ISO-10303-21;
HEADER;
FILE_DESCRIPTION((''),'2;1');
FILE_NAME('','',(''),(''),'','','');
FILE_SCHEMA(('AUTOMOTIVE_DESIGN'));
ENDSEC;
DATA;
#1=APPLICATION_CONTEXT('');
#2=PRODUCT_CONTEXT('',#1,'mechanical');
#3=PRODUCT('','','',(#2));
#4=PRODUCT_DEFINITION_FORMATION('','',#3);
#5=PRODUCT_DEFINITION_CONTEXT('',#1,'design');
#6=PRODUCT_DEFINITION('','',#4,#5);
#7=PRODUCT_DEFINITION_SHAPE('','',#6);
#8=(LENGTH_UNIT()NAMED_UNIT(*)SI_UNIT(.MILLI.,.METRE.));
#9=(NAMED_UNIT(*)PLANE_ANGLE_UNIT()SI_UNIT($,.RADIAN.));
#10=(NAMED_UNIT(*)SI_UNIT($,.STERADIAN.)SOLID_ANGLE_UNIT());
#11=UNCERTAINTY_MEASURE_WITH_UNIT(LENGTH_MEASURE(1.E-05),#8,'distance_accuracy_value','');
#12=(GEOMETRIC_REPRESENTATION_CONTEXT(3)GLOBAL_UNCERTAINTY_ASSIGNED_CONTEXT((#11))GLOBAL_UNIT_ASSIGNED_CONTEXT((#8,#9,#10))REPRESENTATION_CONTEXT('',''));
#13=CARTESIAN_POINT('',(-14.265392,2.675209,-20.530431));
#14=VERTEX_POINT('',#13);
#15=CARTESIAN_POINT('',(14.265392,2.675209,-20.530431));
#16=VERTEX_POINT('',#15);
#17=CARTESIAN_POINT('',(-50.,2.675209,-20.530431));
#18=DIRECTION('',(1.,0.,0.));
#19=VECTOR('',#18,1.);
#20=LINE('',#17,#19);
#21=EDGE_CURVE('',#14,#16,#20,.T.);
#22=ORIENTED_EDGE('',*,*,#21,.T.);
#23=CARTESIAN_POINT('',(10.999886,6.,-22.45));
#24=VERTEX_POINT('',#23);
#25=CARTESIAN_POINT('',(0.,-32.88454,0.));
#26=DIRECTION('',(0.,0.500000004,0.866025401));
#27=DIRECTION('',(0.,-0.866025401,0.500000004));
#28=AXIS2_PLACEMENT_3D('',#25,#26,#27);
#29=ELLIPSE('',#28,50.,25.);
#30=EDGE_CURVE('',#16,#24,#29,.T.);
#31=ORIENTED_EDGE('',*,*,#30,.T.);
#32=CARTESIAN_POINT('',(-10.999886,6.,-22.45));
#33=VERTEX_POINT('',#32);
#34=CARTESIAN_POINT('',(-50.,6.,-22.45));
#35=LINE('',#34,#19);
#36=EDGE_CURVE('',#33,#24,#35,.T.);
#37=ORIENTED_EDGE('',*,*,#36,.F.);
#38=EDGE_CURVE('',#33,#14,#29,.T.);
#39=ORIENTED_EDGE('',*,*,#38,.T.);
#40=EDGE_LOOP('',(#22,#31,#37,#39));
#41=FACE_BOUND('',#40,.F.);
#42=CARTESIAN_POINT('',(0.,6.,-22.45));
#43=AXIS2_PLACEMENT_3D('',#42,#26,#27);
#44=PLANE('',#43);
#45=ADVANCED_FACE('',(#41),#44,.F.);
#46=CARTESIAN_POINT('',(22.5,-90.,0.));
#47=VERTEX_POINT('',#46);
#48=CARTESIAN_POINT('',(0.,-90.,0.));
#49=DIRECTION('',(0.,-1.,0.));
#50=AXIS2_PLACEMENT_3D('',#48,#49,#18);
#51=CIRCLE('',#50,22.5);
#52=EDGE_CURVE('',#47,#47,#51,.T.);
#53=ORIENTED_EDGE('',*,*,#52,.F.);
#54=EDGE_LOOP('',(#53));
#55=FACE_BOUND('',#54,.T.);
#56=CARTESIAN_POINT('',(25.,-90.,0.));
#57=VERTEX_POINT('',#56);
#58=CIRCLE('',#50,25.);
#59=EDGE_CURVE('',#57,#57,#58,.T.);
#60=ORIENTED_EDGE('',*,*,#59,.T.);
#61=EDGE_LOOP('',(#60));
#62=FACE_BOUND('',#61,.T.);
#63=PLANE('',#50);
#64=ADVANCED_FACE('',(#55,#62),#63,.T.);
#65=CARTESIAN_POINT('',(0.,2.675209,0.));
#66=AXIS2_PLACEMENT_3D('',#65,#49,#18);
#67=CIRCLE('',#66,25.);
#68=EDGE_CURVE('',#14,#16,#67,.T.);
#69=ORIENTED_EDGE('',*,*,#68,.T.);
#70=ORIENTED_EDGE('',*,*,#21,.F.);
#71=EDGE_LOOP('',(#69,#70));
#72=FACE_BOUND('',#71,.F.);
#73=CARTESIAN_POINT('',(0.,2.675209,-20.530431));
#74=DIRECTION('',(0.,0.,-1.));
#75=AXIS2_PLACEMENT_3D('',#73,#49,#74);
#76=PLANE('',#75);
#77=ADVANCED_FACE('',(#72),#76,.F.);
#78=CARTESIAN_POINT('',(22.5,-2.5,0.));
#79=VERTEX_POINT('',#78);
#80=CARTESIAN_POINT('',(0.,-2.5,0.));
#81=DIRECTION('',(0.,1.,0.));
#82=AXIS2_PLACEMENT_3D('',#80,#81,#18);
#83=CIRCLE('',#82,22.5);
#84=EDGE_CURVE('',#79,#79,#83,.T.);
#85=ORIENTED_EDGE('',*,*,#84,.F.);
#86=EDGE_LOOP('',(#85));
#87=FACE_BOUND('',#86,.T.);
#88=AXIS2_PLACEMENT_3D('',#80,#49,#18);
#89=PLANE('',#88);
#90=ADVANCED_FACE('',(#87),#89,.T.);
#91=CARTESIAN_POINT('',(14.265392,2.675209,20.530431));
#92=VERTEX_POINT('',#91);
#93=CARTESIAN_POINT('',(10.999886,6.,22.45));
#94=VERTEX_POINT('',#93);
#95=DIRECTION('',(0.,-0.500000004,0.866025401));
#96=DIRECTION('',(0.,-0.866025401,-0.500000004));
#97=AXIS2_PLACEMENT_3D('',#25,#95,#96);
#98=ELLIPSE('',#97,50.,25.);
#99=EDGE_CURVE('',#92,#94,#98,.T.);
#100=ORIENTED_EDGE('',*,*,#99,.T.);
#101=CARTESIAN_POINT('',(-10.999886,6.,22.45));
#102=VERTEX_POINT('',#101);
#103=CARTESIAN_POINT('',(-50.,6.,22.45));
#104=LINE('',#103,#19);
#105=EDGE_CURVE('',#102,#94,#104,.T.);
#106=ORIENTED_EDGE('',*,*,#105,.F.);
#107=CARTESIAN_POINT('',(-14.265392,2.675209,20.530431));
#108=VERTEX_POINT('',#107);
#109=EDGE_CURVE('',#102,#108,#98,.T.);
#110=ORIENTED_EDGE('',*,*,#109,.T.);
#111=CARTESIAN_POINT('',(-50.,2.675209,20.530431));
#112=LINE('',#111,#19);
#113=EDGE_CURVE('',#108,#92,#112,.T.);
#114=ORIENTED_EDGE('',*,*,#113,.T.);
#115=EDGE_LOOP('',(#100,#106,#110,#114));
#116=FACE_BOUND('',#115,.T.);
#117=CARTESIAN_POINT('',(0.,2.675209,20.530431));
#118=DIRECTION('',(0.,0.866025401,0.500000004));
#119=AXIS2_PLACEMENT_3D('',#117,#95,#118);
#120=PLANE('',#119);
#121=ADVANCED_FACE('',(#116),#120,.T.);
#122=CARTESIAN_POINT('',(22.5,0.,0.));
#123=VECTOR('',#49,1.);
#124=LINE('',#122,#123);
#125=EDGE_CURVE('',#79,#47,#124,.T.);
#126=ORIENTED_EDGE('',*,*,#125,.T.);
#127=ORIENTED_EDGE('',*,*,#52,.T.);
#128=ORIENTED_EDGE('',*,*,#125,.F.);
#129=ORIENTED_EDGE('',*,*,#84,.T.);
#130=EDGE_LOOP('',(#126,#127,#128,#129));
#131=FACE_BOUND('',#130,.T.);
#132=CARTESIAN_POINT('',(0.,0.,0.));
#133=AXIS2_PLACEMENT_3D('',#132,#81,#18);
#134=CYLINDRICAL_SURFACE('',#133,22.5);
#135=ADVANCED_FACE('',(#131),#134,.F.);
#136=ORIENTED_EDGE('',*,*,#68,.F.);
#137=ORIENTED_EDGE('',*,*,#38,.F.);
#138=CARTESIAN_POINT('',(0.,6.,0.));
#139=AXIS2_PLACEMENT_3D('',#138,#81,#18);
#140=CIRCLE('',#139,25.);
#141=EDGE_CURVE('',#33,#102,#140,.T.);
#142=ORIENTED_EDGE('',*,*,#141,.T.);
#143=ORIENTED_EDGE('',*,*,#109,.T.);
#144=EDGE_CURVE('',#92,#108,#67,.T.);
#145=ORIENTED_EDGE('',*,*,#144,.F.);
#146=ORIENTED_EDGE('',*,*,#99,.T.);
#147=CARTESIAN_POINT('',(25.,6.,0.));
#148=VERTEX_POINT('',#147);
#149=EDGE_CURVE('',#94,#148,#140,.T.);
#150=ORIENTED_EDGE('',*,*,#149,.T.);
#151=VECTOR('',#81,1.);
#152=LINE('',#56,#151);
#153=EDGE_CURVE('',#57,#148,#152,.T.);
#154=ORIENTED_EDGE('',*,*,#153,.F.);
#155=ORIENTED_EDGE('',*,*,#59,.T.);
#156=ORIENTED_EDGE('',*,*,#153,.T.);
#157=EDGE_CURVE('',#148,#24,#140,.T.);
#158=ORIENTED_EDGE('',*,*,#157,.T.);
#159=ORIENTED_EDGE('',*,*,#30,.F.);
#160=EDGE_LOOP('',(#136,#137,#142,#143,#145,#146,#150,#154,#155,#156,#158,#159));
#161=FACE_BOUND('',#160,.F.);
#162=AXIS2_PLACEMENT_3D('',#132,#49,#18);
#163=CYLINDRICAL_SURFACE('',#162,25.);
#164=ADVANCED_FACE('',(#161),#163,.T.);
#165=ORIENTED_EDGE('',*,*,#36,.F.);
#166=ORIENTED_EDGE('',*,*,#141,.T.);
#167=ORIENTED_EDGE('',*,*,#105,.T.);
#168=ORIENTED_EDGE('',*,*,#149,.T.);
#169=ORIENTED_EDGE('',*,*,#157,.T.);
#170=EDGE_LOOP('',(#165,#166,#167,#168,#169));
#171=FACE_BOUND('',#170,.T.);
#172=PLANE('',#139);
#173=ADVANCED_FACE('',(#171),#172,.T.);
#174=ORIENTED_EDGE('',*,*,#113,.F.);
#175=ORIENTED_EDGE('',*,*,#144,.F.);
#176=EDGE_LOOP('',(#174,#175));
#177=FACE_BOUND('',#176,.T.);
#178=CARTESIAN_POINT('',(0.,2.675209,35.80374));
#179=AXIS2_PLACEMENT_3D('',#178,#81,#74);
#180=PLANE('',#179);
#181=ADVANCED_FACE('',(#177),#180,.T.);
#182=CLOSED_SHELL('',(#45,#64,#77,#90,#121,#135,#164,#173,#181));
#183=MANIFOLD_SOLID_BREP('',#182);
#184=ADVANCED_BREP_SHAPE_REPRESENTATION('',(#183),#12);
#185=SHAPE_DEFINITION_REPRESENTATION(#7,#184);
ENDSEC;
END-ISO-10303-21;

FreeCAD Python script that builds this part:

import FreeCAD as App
import Part
import Sketcher
from FreeCAD import Vector
Q = App.Units.Quantity


def faces_at(feature, points):
    """Names of the faces that lie closest to the given points."""
    faces = feature.Shape.Faces
    near = lambda p: min(range(len(faces)), key=lambda i: faces[i].distToShape(Part.Vertex(*p))[0])
    return sorted({f"Face{near(p) + 1}" for p in points})

doc = App.newDocument("Part")
params = doc.addObject("Spreadsheet::Sheet", "Params")
for row, (alias, value) in enumerate([
    ("sketch1_diameter", "50 mm"),
    ("pad1_length", "90 mm"),
    ("thickness_wall", "2.5 mm"),
    ("sketch2_diameter", "50 mm"),
    ("pad2_length", "6 mm"),
    ("pocket1_length", "100 mm"),
], start=1):
    params.set(f"A{row}", alias)
    params.set(f"B{row}", "=" + value)
    params.setAlias(f"B{row}", alias)

body = doc.addObject("PartDesign::Body", "Body")

# Sketch on XZ plane
sketch1 = body.newObject("Sketcher::SketchObject", "Sketch")
sketch1.AttachmentSupport = (doc.getObject("XZ_Plane"), [""])
sketch1.MapMode = "FlatFace"
sketch1.addGeometry(Part.Circle(Vector(0, 0, 0), Vector(0, 0, 1), 25), False)
sketch1.addConstraint(Sketcher.Constraint("Coincident", 0, 3, -1, 1))
sketch1.addConstraint(Sketcher.Constraint("Diameter", 0, 50.0))
sketch1.setExpression("Constraints[1]", "Params.sketch1_diameter")
pad1 = body.newObject("PartDesign::Pad", "Pad")
pad1.Profile = sketch1
pad1.setExpression("Length", "Params.pad1_length")
doc.recompute()

thickness = body.newObject("PartDesign::Thickness", "Thickness")
thickness.Base = (pad1, faces_at(pad1, [(0, -90, 0)]))
thickness.setExpression("Value", "Params.thickness_wall")
thickness.Reversed = True
thickness.Join = "Arc"

# Sketch on XZ plane
sketch2 = body.newObject("Sketcher::SketchObject", "Sketch001")
sketch2.AttachmentSupport = (doc.getObject("XZ_Plane"), [""])
sketch2.MapMode = "FlatFace"
sketch2.addGeometry(Part.Circle(Vector(0, 0, 0), Vector(0, 0, 1), 25), False)
sketch2.addConstraint(Sketcher.Constraint("Coincident", 0, 3, -1, 1))
sketch2.addConstraint(Sketcher.Constraint("Diameter", 0, 50.0))
sketch2.setExpression("Constraints[1]", "Params.sketch2_diameter")
pad2 = body.newObject("PartDesign::Pad", "Pad001")
pad2.Profile = sketch2
pad2.setExpression("Length", "Params.pad2_length")
pad2.Reversed = True

# Sketch on YZ plane
sketch3 = body.newObject("Sketcher::SketchObject", "Sketch002")
sketch3.AttachmentSupport = (doc.getObject("YZ_Plane"), [""])
sketch3.MapMode = "FlatFace"
sketch3.addGeometry(Part.LineSegment(Vector(2.7, 35.8, 0), Vector(2.7, 20.5, 0)), False)
sketch3.addGeometry(Part.LineSegment(Vector(2.7, 20.5, 0), Vector(6, 22.4, 0)), False)
sketch3.addGeometry(Part.LineSegment(Vector(6, 22.4, 0), Vector(6, 35.8, 0)), False)
sketch3.addGeometry(Part.LineSegment(Vector(6, 35.8, 0), Vector(2.7, 35.8, 0)), False)
sketch3.addGeometry(Part.LineSegment(Vector(6, -37.2, 0), Vector(6, -22.4, 0)), False)
sketch3.addGeometry(Part.LineSegment(Vector(6, -22.4, 0), Vector(2.7, -20.5, 0)), False)
sketch3.addGeometry(Part.LineSegment(Vector(2.7, -20.5, 0), Vector(2.7, -37.2, 0)), False)
sketch3.addGeometry(Part.LineSegment(Vector(2.7, -37.2, 0), Vector(6, -37.2, 0)), False)
sketch3.addConstraint(Sketcher.Constraint("Coincident", 0, 2, 1, 1))
sketch3.addConstraint(Sketcher.Constraint("Coincident", 1, 2, 2, 1))
sketch3.addConstraint(Sketcher.Constraint("Coincident", 2, 2, 3, 1))
sketch3.addConstraint(Sketcher.Constraint("Coincident", 3, 2, 0, 1))
sketch3.addConstraint(Sketcher.Constraint("Coincident", 4, 2, 5, 1))
sketch3.addConstraint(Sketcher.Constraint("Coincident", 5, 2, 6, 1))
sketch3.addConstraint(Sketcher.Constraint("Coincident", 6, 2, 7, 1))
sketch3.addConstraint(Sketcher.Constraint("Coincident", 7, 2, 4, 1))
sketch3.addConstraint(Sketcher.Constraint("Vertical", 0))
sketch3.addConstraint(Sketcher.Constraint("Vertical", 2))
sketch3.addConstraint(Sketcher.Constraint("Horizontal", 3))
sketch3.addConstraint(Sketcher.Constraint("Vertical", 4))
sketch3.addConstraint(Sketcher.Constraint("Vertical", 6))
sketch3.addConstraint(Sketcher.Constraint("Horizontal", 7))
sketch3.addConstraint(Sketcher.Constraint("Symmetric", 1, 2, 4, 2, -1))
sketch3.addConstraint(Sketcher.Constraint("Symmetric", 0, 2, 5, 2, -1))
sketch3.addConstraint(Sketcher.Constraint("Angle", 1, Q("30 deg")))
sketch3.addConstraint(Sketcher.Constraint("DistanceX", -1, 1, 1, 2, 6.0))
sketch3.addConstraint(Sketcher.Constraint("DistanceY", 4, 2, 1, 2, 44.9))
sketch3.addConstraint(Sketcher.Constraint("DistanceX", 3, 2, 3, 1, 3.324791))
sketch3.addConstraint(Sketcher.Constraint("DistanceY", 0, 2, 0, 1, 15.273309))
sketch3.addConstraint(Sketcher.Constraint("DistanceY", 4, 1, 4, 2, 14.790567))
pocket1 = body.newObject("PartDesign::Pocket", "Pocket")
pocket1.Profile = sketch3
pocket1.setExpression("Length", "Params.pocket1_length")
pocket1.Midplane = True

doc.recompute()
